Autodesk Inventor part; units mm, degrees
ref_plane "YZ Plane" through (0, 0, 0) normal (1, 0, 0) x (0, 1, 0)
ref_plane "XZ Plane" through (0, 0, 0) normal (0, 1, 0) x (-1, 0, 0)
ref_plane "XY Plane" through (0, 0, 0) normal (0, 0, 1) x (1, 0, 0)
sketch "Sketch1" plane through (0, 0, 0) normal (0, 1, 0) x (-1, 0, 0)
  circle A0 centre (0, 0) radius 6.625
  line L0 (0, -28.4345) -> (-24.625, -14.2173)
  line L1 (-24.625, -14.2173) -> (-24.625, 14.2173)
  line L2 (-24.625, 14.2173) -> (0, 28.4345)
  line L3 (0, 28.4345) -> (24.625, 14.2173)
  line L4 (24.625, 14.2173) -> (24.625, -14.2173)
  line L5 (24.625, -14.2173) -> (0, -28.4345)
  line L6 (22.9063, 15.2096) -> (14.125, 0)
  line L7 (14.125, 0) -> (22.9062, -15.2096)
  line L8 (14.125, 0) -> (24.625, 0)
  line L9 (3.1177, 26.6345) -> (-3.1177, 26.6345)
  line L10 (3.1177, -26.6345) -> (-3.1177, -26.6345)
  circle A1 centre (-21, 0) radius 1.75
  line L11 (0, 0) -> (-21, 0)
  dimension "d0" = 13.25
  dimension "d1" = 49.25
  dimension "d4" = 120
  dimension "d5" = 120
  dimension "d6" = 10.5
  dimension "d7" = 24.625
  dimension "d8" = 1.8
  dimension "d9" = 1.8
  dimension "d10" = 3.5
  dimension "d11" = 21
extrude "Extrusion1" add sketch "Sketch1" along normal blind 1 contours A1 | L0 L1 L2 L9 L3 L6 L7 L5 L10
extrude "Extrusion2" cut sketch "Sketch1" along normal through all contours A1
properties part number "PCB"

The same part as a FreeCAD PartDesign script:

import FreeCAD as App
import Part
import Sketcher
Q = App.Units.Quantity


def add_polygon(sketch, points):
    """Adds a closed chain of lines whose ends are joined by coincident constraints."""
    first, n = sketch.GeometryCount, len(points)
    for a, b in zip(points, points[1:] + points[:1]):
        sketch.addGeometry(Part.LineSegment(App.Vector(*a, 0), App.Vector(*b, 0)), False)
    for i in range(n):
        sketch.addConstraint(Sketcher.Constraint("Coincident", first + i, 2, first + (i + 1) % n, 1))

doc = App.newDocument("Part")
body = doc.addObject("PartDesign::Body", "Body")

sketch1 = body.newObject("Sketcher::SketchObject", "Sketch")
sketch1.AttachmentSupport = (doc.getObject("XZ_Plane"), [""])
sketch1.MapMode = "FlatFace"
add_polygon(sketch1, [(25, -14), (3, -27), (-3, -27), (-23, -15), (-14, 0), (-23, 15), (-3, 27), (3, 27), (25, 14)])
sketch1.addGeometry(Part.Circle(App.Vector(0, 0, 0), App.Vector(0, 0, 1), 7), False)
sketch1.addConstraint(Sketcher.Constraint("Horizontal", 1))
sketch1.addConstraint(Sketcher.Constraint("Horizontal", 6))
sketch1.addConstraint(Sketcher.Constraint("Vertical", 8))
sketch1.addConstraint(Sketcher.Constraint("Coincident", 9, 3, -1, 1))
sketch1.addConstraint(Sketcher.Constraint("Symmetric", 0, 2, 5, 2, -1, 1))
sketch1.addConstraint(Sketcher.Constraint("Symmetric", 2, 2, 4, 2, -1))
sketch1.addConstraint(Sketcher.Constraint("PointOnObject", 3, 2, -1))
sketch1.addConstraint(Sketcher.Constraint("Perpendicular", 2, 3))
sketch1.addConstraint(Sketcher.Constraint("Perpendicular", 0, 4))
sketch1.addConstraint(Sketcher.Constraint("Perpendicular", 4, 5))
sketch1.addConstraint(Sketcher.Constraint("Perpendicular", 3, 7))
sketch1.addConstraint(Sketcher.Constraint("Vertical", 0, 2, 6, 2))
sketch1.addConstraint(Sketcher.Constraint("Diameter", 9, 13.25))
sketch1.addConstraint(Sketcher.Constraint("Angle", 4, Q("120 deg")))
sketch1.addConstraint(Sketcher.Constraint("DistanceX", -1, 1, 7, 2, 24.625))
sketch1.addConstraint(Sketcher.Constraint("Distance", 5, 22.85))
sketch1.addConstraint(Sketcher.Constraint("DistanceX", 3, 2, 7, 2, 38.75))
sketch1.addConstraint(Sketcher.Constraint("DistanceX", 1, 2, 1, 1, 6.2354))
pad1 = body.newObject("PartDesign::Pad", "Pad")
pad1.Profile = sketch1
pad1.Length = 1
pad1.Reversed = True

sketch2 = body.newObject("Sketcher::SketchObject", "Sketch001")
sketch2.AttachmentSupport = (doc.getObject("XZ_Plane"), [""])
sketch2.MapMode = "FlatFace"
sketch2.addGeometry(Part.Circle(App.Vector(21, 0, 0), App.Vector(0, 0, 1), 1.8), False)
sketch2.addConstraint(Sketcher.Constraint("PointOnObject", 0, 3, -1))
sketch2.addConstraint(Sketcher.Constraint("Diameter", 0, 3.5))
sketch2.addConstraint(Sketcher.Constraint("DistanceX", -1, 1, 0, 3, 21.0))
pocket1 = body.newObject("PartDesign::Pocket", "Pocket")
pocket1.Profile = sketch2
pocket1.Type = "ThroughAll"

doc.recompute()
